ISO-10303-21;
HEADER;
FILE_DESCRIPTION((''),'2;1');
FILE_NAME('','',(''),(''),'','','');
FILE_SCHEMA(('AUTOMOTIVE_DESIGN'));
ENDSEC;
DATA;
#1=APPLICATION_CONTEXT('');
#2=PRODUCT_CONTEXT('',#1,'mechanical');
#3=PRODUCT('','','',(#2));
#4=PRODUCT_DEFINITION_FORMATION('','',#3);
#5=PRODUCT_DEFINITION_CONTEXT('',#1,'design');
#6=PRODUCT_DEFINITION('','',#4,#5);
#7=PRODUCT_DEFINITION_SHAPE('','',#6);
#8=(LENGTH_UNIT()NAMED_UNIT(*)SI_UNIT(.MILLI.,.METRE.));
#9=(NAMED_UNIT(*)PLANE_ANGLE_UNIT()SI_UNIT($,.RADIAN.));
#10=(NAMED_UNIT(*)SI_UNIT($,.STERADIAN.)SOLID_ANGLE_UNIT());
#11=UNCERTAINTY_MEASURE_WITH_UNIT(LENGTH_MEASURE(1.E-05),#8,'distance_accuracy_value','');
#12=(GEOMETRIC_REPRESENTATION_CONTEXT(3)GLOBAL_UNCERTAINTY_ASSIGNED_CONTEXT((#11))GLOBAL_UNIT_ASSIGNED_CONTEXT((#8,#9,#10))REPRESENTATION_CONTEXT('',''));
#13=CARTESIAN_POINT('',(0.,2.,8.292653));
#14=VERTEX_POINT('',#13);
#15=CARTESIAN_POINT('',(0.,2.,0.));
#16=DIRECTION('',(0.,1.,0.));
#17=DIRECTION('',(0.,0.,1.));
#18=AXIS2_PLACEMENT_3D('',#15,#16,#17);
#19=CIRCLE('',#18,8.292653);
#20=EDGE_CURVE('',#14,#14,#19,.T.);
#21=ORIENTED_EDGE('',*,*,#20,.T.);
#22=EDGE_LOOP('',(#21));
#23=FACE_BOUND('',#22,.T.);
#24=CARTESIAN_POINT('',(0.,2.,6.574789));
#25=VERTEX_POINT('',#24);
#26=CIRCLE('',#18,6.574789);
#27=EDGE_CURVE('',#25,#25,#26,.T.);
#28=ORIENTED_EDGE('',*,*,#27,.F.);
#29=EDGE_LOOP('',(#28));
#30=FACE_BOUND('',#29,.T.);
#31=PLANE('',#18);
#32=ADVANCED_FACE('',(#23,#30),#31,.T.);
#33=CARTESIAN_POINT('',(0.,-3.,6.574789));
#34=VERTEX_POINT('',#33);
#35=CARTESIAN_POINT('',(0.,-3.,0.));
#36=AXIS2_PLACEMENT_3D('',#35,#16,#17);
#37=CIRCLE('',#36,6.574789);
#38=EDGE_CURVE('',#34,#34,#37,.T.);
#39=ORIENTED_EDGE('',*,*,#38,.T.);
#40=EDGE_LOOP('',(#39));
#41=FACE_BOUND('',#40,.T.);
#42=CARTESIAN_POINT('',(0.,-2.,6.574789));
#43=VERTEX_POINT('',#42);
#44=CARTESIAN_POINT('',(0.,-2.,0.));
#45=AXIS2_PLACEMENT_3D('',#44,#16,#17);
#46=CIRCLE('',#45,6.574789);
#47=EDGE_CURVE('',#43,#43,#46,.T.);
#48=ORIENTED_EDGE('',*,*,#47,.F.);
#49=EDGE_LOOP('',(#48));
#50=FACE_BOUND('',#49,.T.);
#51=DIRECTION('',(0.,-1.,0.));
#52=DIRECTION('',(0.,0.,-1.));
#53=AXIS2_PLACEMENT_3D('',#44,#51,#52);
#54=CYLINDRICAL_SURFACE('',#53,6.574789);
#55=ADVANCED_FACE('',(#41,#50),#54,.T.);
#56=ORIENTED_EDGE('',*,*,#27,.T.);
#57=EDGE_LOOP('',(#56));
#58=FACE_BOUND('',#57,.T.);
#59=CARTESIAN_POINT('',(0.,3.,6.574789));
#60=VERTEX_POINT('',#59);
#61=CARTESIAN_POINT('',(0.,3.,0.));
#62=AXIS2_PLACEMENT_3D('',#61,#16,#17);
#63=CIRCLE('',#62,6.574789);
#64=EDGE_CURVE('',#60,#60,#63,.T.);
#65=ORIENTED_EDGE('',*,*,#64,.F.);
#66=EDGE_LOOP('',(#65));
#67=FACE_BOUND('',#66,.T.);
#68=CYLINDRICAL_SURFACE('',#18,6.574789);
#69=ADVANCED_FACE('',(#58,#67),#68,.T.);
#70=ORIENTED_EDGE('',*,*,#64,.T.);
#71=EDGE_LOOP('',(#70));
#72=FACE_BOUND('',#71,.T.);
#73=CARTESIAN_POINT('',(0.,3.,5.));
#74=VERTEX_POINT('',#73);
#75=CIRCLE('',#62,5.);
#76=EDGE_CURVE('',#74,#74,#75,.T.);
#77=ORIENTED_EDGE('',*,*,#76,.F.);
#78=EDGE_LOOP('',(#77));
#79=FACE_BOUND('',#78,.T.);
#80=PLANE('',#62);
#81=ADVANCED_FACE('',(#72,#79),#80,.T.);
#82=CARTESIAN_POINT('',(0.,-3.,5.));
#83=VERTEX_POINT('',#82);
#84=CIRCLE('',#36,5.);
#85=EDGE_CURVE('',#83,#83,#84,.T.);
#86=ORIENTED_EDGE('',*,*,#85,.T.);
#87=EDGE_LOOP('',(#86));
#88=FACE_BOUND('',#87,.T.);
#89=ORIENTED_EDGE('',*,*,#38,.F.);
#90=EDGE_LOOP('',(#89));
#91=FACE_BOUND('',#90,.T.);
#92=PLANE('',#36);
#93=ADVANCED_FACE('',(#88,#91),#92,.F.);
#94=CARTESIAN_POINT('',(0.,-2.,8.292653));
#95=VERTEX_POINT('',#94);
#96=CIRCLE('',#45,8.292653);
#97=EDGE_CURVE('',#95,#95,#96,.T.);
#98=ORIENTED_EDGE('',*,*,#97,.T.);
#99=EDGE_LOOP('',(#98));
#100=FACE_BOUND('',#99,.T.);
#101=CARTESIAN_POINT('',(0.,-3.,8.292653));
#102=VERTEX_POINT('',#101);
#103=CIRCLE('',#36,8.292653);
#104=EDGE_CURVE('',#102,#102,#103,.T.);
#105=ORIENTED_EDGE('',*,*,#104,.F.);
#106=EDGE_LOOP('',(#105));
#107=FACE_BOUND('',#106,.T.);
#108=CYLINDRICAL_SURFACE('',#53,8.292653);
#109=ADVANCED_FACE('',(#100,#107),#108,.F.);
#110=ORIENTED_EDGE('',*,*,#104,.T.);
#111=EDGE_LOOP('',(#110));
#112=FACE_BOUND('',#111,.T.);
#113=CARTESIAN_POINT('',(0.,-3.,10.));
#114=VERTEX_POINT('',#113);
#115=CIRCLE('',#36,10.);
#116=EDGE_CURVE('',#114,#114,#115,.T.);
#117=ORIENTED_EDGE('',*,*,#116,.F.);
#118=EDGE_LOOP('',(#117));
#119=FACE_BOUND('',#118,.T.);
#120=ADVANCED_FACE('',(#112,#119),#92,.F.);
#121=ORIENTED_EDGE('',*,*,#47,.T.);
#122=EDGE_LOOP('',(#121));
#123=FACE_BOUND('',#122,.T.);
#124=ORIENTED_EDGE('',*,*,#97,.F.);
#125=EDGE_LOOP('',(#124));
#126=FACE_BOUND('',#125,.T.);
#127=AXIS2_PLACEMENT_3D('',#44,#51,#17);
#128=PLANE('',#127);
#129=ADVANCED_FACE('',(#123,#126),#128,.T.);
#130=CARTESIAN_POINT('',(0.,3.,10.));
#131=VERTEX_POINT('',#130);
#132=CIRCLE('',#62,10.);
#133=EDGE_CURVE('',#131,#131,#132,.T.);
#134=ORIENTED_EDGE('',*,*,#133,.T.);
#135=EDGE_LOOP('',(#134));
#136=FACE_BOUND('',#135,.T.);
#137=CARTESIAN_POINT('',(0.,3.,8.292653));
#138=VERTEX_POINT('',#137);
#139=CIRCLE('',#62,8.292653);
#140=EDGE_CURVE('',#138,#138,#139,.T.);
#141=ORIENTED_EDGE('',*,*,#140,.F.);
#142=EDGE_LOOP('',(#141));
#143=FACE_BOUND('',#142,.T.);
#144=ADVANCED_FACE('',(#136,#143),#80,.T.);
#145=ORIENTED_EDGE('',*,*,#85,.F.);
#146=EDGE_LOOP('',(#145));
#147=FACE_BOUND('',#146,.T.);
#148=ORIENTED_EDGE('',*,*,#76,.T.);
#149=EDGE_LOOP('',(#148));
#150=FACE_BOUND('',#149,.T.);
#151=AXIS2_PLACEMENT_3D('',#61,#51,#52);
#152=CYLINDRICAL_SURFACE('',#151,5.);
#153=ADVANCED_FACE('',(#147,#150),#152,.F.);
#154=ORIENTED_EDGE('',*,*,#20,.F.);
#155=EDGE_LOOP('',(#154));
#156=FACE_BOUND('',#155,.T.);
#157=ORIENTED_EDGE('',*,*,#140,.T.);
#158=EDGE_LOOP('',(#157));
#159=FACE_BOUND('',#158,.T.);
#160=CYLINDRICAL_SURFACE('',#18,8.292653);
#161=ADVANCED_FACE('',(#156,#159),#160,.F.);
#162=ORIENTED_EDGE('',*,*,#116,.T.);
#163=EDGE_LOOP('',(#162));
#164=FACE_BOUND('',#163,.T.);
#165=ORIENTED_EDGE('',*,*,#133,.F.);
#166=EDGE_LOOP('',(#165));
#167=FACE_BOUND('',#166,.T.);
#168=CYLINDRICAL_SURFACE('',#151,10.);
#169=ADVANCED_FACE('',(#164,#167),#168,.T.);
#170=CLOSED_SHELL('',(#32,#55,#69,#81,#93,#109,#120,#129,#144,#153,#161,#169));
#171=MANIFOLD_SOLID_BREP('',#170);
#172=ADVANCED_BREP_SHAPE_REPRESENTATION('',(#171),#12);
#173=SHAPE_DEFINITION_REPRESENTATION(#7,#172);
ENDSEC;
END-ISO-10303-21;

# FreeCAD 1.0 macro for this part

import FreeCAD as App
import Part
import Sketcher

V = App.Vector

doc = App.newDocument("Part")
body = doc.addObject("PartDesign::Body", "Body")

# Sketch on XZ plane
sketch1 = doc.addObject("Sketcher::SketchObject", "Sketch")
body.addObject(sketch1)
sketch1.AttachmentSupport = (doc.XZ_Plane, [""])
sketch1.MapMode = "FlatFace"
sketch1.addGeometry([
    Part.Circle(V(0, 0, 0), V(0, 0, 1), 10),
    Part.Circle(V(0, 0, 0), V(0, 0, 1), 5),
], False)
sketch1.addConstraint([
    Sketcher.Constraint("Coincident", 0, 3, -1, 1),
    Sketcher.Constraint("Coincident", 1, 3, -1, 1),
    Sketcher.Constraint("Diameter", 0, 20.0),
    Sketcher.Constraint("Diameter", 1, 10.0),
])
pad1 = doc.addObject("PartDesign::Pad", "Pad")
body.addObject(pad1)
pad1.Profile = sketch1
pad1.Length = 6
pad1.Midplane = True

# Sketch on XZ plane
sketch2 = doc.addObject("Sketcher::SketchObject", "Sketch001")
body.addObject(sketch2)
sketch2.AttachmentSupport = (doc.XZ_Plane, [""])
sketch2.MapMode = "FlatFace"
sketch2.AttachmentOffset = App.Placement(V(0, 0, -3), App.Rotation())
sketch2.addGeometry([
    Part.Circle(V(0, 0, 0), V(0, 0, 1), 8),
    Part.Circle(V(0, 0, 0), V(0, 0, 1), 7),
], False)
sketch2.addConstraint([
    Sketcher.Constraint("Coincident", 0, 3, -1, 1),
    Sketcher.Constraint("Coincident", 1, 3, -1, 1),
    Sketcher.Constraint("Diameter", 1, 13.149579),
    Sketcher.Constraint("Diameter", 0, 16.585307),
])
pocket1 = doc.addObject("PartDesign::Pocket", "Pocket")
body.addObject(pocket1)
pocket1.Profile = sketch2
pocket1.Length = 1
pocket1.Reversed = True
doc.recompute()

mirrored = doc.addObject("PartDesign::Mirrored", "Mirrored")
body.addObject(mirrored)
mirrored.Originals = [pocket1]
mirrored.MirrorPlane = (doc.XZ_Plane, [""])
body.Tip = mirrored

doc.recompute()
